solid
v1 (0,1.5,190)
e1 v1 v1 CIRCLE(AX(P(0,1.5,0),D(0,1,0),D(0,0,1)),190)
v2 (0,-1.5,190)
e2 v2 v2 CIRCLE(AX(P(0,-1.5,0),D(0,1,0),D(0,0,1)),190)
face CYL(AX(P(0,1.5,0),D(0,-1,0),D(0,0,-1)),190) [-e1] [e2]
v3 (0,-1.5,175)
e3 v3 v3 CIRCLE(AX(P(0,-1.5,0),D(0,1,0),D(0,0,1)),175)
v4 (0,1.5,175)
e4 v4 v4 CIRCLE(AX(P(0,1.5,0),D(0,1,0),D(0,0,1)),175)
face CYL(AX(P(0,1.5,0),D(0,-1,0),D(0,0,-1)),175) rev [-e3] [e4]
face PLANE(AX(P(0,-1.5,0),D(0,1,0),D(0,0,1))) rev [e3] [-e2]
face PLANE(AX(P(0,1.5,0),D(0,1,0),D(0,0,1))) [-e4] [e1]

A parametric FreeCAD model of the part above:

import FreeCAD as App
import Part
import Sketcher
Q = App.Units.Quantity

doc = App.newDocument("Part")
params = doc.addObject("Spreadsheet::Sheet", "Params")
for row, (alias, value) in enumerate([
    ("sketch1_diameter", "380 mm"),
    ("sketch1_diameter2", "350 mm"),
    ("pad1_length", "3 mm"),
], start=1):
    params.set(f"A{row}", alias)
    params.set(f"B{row}", "=" + value)
    params.setAlias(f"B{row}", alias)

body = doc.addObject("PartDesign::Body", "Body")

# Sketch on XZ plane
sketch1 = body.newObject("Sketcher::SketchObject", "Sketch")
sketch1.AttachmentSupport = (doc.getObject("XZ_Plane"), [""])
sketch1.MapMode = "FlatFace"
sketch1.addGeometry([
    Part.Circle(App.Vector(0, 0, 0), App.Vector(0, 0, 1), 190),
    Part.Circle(App.Vector(0, 0, 0), App.Vector(0, 0, 1), 175),
], False)
sketch1.addConstraint([
    Sketcher.Constraint("Coincident", 0, 3, -1, 1),
    Sketcher.Constraint("Coincident", 1, 3, -1, 1),
    Sketcher.Constraint("Diameter", 0, Q("380 mm")),
    Sketcher.Constraint("Diameter", 1, Q("350 mm")),
])
sketch1.setExpression("Constraints[2]", "Params.sketch1_diameter")
sketch1.setExpression("Constraints[3]", "Params.sketch1_diameter2")
pad1 = body.newObject("PartDesign::Pad", "Pad")
pad1.Profile = sketch1
pad1.setExpression("Length", "Params.pad1_length")
pad1.Midplane = True

doc.recompute()
